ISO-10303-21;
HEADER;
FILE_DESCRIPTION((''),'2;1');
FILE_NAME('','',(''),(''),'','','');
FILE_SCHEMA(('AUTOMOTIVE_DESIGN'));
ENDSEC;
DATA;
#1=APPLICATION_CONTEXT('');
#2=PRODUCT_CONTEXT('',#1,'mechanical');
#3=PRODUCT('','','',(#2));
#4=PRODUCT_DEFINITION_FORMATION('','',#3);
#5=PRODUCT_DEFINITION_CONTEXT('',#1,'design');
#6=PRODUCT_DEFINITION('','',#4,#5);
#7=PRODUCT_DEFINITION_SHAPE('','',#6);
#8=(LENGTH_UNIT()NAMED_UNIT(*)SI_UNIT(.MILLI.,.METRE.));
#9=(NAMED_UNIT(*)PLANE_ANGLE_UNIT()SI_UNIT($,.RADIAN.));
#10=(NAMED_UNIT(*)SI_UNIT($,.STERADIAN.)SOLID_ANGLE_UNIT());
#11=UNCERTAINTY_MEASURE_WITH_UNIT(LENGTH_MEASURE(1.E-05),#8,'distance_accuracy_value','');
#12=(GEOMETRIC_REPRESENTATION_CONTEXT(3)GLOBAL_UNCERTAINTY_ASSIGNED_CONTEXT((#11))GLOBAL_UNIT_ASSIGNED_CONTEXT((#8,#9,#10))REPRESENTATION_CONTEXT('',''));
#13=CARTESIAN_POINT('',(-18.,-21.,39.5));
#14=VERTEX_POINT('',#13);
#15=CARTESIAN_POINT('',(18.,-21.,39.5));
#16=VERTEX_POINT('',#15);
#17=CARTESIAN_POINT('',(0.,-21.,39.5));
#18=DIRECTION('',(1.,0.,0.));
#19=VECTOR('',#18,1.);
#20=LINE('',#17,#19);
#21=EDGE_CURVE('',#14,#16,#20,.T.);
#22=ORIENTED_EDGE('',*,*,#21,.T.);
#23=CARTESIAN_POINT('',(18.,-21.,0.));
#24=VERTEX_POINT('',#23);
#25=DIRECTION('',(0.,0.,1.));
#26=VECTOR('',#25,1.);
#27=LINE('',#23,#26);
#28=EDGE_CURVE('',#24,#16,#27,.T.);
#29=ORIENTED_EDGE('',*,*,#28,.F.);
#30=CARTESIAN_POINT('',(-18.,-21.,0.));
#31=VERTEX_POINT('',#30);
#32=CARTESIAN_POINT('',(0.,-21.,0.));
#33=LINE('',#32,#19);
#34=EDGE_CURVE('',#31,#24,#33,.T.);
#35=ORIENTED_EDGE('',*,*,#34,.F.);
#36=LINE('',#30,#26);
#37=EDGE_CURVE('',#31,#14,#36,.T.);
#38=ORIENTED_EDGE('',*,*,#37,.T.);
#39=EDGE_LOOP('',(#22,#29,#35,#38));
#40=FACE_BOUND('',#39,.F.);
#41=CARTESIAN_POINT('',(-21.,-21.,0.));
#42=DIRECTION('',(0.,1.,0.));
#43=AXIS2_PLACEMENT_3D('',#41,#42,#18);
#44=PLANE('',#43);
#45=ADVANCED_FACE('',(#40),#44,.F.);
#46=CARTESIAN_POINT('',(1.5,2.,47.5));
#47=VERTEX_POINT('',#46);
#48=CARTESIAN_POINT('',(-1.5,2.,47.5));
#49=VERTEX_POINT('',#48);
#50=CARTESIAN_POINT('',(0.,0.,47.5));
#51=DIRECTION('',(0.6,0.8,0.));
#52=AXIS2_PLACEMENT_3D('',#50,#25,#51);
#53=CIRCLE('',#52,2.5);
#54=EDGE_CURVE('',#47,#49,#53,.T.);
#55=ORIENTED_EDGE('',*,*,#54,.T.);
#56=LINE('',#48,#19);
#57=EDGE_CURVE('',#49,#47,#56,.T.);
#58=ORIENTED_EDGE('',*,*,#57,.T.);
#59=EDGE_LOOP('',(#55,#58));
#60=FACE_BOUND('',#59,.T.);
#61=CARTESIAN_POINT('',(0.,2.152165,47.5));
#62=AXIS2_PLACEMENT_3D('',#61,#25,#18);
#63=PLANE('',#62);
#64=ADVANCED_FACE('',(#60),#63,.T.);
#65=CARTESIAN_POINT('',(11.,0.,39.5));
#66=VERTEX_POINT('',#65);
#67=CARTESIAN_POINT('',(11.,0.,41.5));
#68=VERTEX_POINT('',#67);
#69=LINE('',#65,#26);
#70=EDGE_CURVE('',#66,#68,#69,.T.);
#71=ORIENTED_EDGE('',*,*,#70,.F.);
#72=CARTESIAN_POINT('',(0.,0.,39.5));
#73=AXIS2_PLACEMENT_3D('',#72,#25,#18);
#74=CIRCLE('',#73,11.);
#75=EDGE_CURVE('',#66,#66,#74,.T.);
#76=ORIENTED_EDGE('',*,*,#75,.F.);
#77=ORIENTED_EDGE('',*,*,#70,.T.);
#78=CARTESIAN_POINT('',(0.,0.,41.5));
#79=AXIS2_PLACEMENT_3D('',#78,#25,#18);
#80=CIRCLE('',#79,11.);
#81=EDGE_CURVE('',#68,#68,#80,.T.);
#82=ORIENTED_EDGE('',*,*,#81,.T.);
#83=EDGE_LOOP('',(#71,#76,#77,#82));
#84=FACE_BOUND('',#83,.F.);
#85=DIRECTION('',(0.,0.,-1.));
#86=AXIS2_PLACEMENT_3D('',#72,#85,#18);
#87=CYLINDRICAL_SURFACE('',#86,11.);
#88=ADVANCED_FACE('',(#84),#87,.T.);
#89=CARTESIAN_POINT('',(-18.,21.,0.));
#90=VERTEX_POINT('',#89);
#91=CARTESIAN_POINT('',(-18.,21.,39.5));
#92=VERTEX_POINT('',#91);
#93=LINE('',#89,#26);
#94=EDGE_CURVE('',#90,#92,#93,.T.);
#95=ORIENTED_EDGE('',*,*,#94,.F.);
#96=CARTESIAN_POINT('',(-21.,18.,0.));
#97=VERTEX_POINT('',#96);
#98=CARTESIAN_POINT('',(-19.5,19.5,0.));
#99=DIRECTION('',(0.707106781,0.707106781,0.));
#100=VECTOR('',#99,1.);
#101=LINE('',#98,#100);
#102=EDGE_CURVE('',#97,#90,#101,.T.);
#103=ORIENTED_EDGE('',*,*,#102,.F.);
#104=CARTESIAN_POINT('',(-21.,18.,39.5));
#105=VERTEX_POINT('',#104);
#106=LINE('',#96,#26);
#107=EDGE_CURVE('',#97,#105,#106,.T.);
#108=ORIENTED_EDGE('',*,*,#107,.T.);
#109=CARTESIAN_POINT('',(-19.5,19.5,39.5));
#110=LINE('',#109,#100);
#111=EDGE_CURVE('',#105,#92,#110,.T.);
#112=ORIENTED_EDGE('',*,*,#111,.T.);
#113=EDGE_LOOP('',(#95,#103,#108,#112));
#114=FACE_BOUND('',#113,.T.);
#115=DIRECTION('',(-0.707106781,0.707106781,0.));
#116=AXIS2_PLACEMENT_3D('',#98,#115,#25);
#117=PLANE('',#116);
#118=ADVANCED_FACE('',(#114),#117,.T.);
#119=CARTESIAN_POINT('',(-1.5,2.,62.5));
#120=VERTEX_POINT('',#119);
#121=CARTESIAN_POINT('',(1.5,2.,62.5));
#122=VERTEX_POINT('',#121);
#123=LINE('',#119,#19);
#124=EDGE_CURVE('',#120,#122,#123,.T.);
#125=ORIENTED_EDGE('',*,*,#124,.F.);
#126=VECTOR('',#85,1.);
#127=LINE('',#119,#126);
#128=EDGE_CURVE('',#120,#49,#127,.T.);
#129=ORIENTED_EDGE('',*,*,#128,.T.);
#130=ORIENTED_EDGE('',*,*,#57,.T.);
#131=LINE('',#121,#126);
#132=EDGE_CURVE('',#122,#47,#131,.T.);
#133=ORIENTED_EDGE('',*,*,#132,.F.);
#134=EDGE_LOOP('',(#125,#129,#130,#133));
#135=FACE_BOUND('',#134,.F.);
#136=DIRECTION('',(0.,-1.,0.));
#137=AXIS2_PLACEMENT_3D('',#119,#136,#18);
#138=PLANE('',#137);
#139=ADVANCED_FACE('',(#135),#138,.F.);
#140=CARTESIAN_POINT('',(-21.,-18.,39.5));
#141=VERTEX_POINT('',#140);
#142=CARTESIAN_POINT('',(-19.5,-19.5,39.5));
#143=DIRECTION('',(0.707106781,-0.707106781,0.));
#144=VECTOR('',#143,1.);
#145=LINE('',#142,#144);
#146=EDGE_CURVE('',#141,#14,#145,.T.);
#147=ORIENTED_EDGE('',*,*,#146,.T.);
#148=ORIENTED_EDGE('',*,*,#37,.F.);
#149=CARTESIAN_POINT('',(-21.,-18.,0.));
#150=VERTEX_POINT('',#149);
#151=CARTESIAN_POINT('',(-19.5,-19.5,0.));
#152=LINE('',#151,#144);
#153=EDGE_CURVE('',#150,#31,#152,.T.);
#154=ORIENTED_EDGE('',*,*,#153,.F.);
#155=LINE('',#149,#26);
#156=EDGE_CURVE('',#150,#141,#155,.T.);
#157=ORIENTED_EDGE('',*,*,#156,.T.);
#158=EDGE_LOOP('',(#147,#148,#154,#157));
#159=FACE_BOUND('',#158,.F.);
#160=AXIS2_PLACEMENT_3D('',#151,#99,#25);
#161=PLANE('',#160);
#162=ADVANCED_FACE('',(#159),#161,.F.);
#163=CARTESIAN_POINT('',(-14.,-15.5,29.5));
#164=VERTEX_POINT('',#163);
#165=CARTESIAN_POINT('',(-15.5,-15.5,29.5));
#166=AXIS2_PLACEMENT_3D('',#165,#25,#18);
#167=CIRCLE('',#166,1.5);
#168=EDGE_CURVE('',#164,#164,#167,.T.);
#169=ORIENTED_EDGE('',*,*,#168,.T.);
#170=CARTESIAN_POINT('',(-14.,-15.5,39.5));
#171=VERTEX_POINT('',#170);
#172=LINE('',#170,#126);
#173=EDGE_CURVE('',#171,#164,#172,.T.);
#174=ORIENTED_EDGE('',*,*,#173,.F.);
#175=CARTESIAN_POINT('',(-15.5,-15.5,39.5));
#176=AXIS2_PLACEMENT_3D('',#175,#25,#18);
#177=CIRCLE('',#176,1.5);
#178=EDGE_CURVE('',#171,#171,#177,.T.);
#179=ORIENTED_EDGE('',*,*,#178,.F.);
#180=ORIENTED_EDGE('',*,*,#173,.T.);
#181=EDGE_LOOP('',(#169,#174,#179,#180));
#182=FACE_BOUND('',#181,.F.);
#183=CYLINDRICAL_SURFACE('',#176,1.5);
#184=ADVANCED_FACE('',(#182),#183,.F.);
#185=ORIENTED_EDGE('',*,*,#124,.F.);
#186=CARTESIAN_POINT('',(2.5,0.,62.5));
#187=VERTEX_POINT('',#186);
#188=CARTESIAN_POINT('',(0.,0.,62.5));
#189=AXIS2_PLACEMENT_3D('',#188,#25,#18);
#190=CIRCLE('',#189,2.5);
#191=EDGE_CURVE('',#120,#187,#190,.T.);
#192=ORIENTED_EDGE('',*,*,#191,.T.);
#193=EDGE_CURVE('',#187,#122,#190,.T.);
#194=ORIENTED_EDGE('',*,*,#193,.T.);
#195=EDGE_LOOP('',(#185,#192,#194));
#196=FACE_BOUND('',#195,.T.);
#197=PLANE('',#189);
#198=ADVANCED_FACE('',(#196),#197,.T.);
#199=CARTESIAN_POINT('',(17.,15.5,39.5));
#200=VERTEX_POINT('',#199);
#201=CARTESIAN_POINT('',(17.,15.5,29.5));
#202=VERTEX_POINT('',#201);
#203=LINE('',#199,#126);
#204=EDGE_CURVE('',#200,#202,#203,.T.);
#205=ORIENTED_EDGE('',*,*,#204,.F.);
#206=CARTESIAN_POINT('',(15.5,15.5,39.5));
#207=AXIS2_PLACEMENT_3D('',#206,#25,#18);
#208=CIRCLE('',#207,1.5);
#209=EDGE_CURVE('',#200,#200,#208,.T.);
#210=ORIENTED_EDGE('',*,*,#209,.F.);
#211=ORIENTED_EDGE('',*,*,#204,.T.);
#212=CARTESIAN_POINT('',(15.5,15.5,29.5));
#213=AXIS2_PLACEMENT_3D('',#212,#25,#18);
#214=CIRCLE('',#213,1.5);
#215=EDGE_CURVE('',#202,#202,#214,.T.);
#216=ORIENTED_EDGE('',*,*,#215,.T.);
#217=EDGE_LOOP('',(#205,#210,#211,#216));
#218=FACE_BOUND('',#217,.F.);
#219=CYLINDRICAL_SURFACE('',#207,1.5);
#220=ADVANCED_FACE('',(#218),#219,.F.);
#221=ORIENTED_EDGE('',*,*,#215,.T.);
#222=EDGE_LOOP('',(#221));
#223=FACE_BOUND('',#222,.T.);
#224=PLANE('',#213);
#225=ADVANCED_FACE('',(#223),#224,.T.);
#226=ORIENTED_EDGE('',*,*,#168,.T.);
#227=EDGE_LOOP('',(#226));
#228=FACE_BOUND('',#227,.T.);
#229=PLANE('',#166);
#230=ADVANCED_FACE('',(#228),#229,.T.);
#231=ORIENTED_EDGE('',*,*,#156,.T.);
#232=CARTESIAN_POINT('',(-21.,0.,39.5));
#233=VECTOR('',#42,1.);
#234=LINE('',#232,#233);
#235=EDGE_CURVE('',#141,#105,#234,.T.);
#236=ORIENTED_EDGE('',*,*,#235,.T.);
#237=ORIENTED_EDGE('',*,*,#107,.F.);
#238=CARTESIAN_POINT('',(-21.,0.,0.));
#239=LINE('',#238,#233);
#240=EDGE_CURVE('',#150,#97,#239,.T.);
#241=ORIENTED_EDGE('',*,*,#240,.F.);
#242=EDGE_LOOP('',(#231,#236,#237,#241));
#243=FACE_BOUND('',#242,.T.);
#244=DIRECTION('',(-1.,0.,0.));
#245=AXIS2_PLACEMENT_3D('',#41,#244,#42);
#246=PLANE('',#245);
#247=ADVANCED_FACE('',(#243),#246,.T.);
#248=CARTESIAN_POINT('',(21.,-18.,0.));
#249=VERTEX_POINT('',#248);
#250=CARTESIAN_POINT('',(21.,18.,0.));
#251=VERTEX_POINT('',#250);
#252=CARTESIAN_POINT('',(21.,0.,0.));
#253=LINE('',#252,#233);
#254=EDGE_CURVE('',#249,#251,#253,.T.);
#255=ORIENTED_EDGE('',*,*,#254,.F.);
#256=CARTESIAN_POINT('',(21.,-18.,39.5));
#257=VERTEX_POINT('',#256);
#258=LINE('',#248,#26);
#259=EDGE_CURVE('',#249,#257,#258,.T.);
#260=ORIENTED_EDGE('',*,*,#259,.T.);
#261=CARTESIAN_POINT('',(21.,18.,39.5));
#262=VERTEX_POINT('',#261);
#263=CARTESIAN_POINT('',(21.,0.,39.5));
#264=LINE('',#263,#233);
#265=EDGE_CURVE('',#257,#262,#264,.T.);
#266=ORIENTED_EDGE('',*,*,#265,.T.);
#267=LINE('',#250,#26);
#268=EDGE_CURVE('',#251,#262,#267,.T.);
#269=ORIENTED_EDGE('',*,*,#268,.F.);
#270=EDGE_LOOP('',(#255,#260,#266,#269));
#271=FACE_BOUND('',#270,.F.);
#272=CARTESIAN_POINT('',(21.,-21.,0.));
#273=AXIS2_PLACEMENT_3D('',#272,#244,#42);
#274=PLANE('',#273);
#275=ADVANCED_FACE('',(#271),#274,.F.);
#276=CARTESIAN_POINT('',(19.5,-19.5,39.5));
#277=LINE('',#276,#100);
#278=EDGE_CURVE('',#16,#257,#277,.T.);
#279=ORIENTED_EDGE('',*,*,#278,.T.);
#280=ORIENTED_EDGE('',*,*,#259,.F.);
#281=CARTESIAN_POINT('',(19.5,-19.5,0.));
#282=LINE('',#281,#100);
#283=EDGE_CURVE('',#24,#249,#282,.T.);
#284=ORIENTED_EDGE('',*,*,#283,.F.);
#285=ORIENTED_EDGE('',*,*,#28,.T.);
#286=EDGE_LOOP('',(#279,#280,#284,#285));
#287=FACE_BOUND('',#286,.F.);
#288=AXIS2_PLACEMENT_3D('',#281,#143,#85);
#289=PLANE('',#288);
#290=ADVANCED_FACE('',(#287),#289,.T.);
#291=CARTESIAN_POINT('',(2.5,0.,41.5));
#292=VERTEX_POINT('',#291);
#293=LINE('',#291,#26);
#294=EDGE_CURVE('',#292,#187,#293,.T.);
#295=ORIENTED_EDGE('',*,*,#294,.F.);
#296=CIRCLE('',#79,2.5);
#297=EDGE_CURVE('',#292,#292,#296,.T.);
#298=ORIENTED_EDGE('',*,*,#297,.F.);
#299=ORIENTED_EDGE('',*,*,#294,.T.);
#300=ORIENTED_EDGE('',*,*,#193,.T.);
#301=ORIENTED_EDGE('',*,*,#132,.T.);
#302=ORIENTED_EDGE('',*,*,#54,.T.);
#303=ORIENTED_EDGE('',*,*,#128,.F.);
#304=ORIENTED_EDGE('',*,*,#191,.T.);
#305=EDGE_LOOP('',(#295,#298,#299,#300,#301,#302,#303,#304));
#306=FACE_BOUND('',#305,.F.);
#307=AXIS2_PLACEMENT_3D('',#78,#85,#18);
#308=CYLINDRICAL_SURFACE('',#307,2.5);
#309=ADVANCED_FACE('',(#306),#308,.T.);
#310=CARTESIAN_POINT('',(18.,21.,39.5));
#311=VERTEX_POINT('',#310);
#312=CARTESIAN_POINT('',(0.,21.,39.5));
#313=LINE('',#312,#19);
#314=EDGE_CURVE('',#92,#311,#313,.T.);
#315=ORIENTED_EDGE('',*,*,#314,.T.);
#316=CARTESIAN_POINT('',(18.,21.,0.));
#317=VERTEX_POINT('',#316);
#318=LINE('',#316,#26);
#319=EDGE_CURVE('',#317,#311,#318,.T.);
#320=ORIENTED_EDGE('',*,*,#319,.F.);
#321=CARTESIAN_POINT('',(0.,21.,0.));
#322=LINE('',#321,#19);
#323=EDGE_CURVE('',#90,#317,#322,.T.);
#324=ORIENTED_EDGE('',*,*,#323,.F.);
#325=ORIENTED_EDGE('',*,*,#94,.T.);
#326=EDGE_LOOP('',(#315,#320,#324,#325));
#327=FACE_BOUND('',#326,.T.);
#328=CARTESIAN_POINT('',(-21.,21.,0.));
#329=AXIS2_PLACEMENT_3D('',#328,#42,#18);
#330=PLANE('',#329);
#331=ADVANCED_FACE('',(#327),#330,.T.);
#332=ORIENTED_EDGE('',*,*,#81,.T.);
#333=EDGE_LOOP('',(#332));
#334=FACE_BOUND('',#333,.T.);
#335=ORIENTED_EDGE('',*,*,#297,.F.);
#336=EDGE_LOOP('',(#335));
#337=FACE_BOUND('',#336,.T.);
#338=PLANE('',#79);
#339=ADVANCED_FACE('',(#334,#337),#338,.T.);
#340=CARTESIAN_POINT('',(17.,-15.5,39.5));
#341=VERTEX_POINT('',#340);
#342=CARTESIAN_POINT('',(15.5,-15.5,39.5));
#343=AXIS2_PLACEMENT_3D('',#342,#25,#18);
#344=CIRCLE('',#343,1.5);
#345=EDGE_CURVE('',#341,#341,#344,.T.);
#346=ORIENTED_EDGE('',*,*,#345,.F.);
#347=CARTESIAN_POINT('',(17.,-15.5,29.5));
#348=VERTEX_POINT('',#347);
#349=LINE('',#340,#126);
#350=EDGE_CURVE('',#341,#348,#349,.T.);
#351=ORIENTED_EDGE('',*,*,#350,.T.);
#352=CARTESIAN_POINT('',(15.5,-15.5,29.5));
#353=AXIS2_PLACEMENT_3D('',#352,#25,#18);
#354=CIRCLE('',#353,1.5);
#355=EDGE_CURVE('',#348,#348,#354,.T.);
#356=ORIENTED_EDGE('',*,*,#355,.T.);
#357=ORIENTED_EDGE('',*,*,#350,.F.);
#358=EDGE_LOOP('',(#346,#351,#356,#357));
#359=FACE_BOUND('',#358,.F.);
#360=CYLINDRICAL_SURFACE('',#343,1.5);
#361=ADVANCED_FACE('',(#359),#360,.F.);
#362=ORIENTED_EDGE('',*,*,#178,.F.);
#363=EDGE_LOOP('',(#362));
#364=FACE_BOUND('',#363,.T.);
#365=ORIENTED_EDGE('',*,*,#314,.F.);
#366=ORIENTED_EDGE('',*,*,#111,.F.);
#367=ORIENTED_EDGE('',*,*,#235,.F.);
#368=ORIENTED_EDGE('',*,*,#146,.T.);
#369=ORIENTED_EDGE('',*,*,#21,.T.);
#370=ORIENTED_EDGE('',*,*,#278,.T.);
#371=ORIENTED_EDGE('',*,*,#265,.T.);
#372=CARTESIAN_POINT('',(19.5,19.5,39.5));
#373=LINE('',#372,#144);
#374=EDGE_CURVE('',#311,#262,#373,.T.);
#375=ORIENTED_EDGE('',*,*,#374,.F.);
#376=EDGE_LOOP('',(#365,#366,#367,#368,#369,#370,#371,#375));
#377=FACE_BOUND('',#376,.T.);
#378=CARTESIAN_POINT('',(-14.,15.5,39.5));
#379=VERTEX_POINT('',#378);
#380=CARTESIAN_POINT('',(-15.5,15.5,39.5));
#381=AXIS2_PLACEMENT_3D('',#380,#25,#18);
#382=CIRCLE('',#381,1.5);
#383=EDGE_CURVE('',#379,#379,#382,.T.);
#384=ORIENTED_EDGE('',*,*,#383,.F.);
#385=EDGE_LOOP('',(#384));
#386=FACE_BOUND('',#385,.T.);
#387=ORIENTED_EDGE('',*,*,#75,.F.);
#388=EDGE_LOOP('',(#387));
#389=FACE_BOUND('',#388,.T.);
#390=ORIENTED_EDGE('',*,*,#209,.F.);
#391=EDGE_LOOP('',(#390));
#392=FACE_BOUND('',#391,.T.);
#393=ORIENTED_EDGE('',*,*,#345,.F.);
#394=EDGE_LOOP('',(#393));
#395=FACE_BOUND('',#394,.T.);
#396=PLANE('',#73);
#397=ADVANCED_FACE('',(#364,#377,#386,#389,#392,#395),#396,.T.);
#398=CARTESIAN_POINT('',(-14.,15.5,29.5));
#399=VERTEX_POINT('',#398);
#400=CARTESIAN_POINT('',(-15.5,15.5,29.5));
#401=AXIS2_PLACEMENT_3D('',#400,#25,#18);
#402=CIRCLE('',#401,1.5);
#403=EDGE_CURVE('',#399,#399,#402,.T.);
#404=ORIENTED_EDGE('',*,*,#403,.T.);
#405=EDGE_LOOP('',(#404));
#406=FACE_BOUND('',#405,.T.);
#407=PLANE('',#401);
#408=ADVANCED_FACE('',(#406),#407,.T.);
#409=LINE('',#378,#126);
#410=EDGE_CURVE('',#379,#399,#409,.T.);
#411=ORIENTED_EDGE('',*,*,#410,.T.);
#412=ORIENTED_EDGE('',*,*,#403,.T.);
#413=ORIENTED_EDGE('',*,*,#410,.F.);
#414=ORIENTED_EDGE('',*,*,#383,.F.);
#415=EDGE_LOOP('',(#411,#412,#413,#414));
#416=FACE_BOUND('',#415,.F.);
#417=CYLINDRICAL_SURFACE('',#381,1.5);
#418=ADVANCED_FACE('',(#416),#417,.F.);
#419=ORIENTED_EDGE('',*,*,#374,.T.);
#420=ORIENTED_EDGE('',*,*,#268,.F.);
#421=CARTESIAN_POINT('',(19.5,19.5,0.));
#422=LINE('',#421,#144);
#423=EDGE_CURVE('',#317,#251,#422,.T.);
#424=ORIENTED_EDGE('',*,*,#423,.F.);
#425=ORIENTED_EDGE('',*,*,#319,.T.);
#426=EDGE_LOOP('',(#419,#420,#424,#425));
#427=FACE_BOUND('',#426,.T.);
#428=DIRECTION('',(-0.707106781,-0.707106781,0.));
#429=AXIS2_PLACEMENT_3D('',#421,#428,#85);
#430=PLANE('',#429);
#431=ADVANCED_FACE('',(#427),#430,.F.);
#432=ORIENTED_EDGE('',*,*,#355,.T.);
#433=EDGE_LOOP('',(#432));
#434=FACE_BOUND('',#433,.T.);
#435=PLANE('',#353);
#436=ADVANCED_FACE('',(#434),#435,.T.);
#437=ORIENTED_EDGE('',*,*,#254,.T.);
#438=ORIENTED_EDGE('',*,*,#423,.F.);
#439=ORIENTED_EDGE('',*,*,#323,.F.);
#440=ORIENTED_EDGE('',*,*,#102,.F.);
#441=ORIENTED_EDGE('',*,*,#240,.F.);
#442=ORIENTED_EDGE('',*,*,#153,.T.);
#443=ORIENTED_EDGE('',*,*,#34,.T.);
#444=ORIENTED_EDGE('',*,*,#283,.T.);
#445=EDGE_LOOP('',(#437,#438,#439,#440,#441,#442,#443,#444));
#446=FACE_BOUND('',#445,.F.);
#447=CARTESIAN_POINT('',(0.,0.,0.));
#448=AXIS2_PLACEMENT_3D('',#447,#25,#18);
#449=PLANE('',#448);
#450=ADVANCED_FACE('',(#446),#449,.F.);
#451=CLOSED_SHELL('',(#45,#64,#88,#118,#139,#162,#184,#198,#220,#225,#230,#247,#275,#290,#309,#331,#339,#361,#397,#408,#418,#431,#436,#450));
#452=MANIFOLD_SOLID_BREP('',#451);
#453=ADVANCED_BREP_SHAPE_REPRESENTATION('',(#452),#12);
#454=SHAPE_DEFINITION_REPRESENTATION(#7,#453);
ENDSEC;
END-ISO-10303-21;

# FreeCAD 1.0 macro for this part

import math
import FreeCAD as App
import Part
import Sketcher

V = App.Vector


def edges_at(feature, points):
    """Names of the edges that pass closest to the given points."""
    edges = feature.Shape.Edges
    near = lambda p: min(range(len(edges)), key=lambda i: edges[i].distToShape(Part.Vertex(*p))[0])
    return sorted({f"Edge{near(p) + 1}" for p in points})

doc = App.newDocument("Part")
body = doc.addObject("PartDesign::Body", "Body")

# Sketch on XY plane
sketch1 = body.newObject("Sketcher::SketchObject", "Sketch")
sketch1.AttachmentSupport = (doc.getObject("XY_Plane"), [""])
sketch1.MapMode = "FlatFace"
sketch1.addGeometry([
    Part.LineSegment(V(-21, 21, 0), V(-21, -21, 0)),
    Part.LineSegment(V(-21, -21, 0), V(21, -21, 0)),
    Part.LineSegment(V(21, -21, 0), V(21, 21, 0)),
    Part.LineSegment(V(21, 21, 0), V(-21, 21, 0)),
], False)
sketch1.addConstraint([
    Sketcher.Constraint("Coincident", 0, 2, 1, 1),
    Sketcher.Constraint("Coincident", 1, 2, 2, 1),
    Sketcher.Constraint("Coincident", 2, 2, 3, 1),
    Sketcher.Constraint("Coincident", 3, 2, 0, 1),
    Sketcher.Constraint("Vertical", 0),
    Sketcher.Constraint("Horizontal", 1),
    Sketcher.Constraint("Vertical", 2),
    Sketcher.Constraint("Horizontal", 3),
    Sketcher.Constraint("Symmetric", 0, 2, 2, 2, -1, 1),
    Sketcher.Constraint("Equal", 3, 0),
    Sketcher.Constraint("DistanceX", 1, 1, 1, 2, 42.0),
])
pad1 = body.newObject("PartDesign::Pad", "Pad")
pad1.Profile = sketch1
pad1.Length = 39.5

# Sketch on XY plane
sketch2 = body.newObject("Sketcher::SketchObject", "Sketch001")
sketch2.AttachmentSupport = (doc.getObject("XY_Plane"), [""])
sketch2.MapMode = "FlatFace"
sketch2.AttachmentOffset = App.Placement(V(0, 0, 39.5), App.Rotation())
sketch2.addGeometry([
    Part.Circle(V(-15.5, -15.5, 0), V(0, 0, 1), 1.5),
    Part.Circle(V(-15.5, 15.5, 0), V(0, 0, 1), 1.5),
    Part.Circle(V(15.5, 15.5, 0), V(0, 0, 1), 1.5),
    Part.Circle(V(15.5, -15.5, 0), V(0, 0, 1), 1.5),
], False)
sketch2.addConstraint([
    Sketcher.Constraint("Equal", 0, 1),
    Sketcher.Constraint("Equal", 1, 2),
    Sketcher.Constraint("Equal", 2, 3),
    Sketcher.Constraint("Symmetric", 0, 3, 2, 3, -1, 1),
    Sketcher.Constraint("Symmetric", 1, 3, 3, 3, -1, 1),
    Sketcher.Constraint("Symmetric", 1, 3, 2, 3, -2),
    Sketcher.Constraint("Diameter", 0, 3.0),
    Sketcher.Constraint("DistanceY", 0, 3, 1, 3, 31.0),
    Sketcher.Constraint("DistanceX", 1, 3, 2, 3, 31.0),
])
pocket1 = body.newObject("PartDesign::Pocket", "Pocket")
pocket1.Profile = sketch2
pocket1.Length = 10

# Sketch on XY plane
sketch3 = body.newObject("Sketcher::SketchObject", "Sketch002")
sketch3.AttachmentSupport = (doc.getObject("XY_Plane"), [""])
sketch3.MapMode = "FlatFace"
sketch3.AttachmentOffset = App.Placement(V(0, 0, 39.5), App.Rotation())
sketch3.addGeometry(Part.Circle(V(0, 0, 0), V(0, 0, 1), 11), False)
sketch3.addConstraint([
    Sketcher.Constraint("Coincident", 0, 3, -1, 1),
    Sketcher.Constraint("Diameter", 0, 22.0),
])
pad2 = body.newObject("PartDesign::Pad", "Pad001")
pad2.Profile = sketch3
pad2.Length = 2

# Sketch on XY plane
sketch4 = body.newObject("Sketcher::SketchObject", "Sketch003")
sketch4.AttachmentSupport = (doc.getObject("XY_Plane"), [""])
sketch4.MapMode = "FlatFace"
sketch4.AttachmentOffset = App.Placement(V(0, 0, 41.5), App.Rotation())
sketch4.addGeometry(Part.Circle(V(0, 0, 0), V(0, 0, 1), 2.5), False)
sketch4.addConstraint([
    Sketcher.Constraint("Coincident", 0, 3, -1, 1),
    Sketcher.Constraint("Diameter", 0, 5.0),
])
pad3 = body.newObject("PartDesign::Pad", "Pad002")
pad3.Profile = sketch4
pad3.Length = 21

# Sketch on XY plane
sketch5 = body.newObject("Sketcher::SketchObject", "Sketch004")
sketch5.AttachmentSupport = (doc.getObject("XY_Plane"), [""])
sketch5.MapMode = "FlatFace"
sketch5.AttachmentOffset = App.Placement(V(0, 0, 62.5), App.Rotation())
sketch5.addGeometry([
    Part.ArcOfCircle(Part.Circle(V(0, 0, 0), V(0, 0, 1), 2.5), math.radians(53.130102), math.radians(126.869898)),
    Part.LineSegment(V(-1.5, 2, 0), V(1.5, 2, 0)),
], False)
sketch5.addConstraint([
    Sketcher.Constraint("Coincident", 0, 1, 1, 2),
    Sketcher.Constraint("Coincident", 1, 1, 0, 2),
    Sketcher.Constraint("Horizontal", 1),
    Sketcher.Constraint("Coincident", 0, 3, -1, 1),
    Sketcher.Constraint("Radius", 0, 2.5),
    Sketcher.Constraint("DistanceX", 1, 1, 1, 2, 3.0),
])
pocket2 = body.newObject("PartDesign::Pocket", "Pocket001")
pocket2.Profile = sketch5
pocket2.Length = 15
doc.recompute()

chamfer = body.newObject("PartDesign::Chamfer", "Chamfer")
chamfer.Base = (pocket2, edges_at(pocket2, [
    (21, -21, 19.75),
    (21, 21, 19.75),
    (-21, -21, 19.75),
    (-21, 21, 19.75),
]))
chamfer.Size = 3

doc.recompute()
